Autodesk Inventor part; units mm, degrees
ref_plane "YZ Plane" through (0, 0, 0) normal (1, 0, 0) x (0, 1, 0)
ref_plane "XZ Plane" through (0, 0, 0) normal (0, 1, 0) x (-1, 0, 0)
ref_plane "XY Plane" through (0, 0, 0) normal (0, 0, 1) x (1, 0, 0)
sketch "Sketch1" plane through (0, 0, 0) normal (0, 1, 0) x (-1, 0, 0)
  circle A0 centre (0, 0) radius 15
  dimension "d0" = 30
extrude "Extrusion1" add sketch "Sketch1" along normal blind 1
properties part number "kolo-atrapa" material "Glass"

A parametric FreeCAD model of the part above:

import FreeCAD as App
import Part
import Sketcher
from FreeCAD import Vector

doc = App.newDocument("Part")
body = doc.addObject("PartDesign::Body", "Body")

sketch1 = body.newObject("Sketcher::SketchObject", "Sketch")
sketch1.AttachmentSupport = (doc.getObject("XZ_Plane"), [""])
sketch1.MapMode = "FlatFace"
sketch1.addGeometry(Part.Circle(Vector(0, 0, 0), Vector(0, 0, 1), 15), False)
sketch1.addConstraint([
    Sketcher.Constraint("Coincident", 0, 3, -1, 1),
    Sketcher.Constraint("Diameter", 0, 30.0),
])
pad1 = body.newObject("PartDesign::Pad", "Pad")
pad1.Profile = sketch1
pad1.Length = 1
pad1.Reversed = True

doc.recompute()
